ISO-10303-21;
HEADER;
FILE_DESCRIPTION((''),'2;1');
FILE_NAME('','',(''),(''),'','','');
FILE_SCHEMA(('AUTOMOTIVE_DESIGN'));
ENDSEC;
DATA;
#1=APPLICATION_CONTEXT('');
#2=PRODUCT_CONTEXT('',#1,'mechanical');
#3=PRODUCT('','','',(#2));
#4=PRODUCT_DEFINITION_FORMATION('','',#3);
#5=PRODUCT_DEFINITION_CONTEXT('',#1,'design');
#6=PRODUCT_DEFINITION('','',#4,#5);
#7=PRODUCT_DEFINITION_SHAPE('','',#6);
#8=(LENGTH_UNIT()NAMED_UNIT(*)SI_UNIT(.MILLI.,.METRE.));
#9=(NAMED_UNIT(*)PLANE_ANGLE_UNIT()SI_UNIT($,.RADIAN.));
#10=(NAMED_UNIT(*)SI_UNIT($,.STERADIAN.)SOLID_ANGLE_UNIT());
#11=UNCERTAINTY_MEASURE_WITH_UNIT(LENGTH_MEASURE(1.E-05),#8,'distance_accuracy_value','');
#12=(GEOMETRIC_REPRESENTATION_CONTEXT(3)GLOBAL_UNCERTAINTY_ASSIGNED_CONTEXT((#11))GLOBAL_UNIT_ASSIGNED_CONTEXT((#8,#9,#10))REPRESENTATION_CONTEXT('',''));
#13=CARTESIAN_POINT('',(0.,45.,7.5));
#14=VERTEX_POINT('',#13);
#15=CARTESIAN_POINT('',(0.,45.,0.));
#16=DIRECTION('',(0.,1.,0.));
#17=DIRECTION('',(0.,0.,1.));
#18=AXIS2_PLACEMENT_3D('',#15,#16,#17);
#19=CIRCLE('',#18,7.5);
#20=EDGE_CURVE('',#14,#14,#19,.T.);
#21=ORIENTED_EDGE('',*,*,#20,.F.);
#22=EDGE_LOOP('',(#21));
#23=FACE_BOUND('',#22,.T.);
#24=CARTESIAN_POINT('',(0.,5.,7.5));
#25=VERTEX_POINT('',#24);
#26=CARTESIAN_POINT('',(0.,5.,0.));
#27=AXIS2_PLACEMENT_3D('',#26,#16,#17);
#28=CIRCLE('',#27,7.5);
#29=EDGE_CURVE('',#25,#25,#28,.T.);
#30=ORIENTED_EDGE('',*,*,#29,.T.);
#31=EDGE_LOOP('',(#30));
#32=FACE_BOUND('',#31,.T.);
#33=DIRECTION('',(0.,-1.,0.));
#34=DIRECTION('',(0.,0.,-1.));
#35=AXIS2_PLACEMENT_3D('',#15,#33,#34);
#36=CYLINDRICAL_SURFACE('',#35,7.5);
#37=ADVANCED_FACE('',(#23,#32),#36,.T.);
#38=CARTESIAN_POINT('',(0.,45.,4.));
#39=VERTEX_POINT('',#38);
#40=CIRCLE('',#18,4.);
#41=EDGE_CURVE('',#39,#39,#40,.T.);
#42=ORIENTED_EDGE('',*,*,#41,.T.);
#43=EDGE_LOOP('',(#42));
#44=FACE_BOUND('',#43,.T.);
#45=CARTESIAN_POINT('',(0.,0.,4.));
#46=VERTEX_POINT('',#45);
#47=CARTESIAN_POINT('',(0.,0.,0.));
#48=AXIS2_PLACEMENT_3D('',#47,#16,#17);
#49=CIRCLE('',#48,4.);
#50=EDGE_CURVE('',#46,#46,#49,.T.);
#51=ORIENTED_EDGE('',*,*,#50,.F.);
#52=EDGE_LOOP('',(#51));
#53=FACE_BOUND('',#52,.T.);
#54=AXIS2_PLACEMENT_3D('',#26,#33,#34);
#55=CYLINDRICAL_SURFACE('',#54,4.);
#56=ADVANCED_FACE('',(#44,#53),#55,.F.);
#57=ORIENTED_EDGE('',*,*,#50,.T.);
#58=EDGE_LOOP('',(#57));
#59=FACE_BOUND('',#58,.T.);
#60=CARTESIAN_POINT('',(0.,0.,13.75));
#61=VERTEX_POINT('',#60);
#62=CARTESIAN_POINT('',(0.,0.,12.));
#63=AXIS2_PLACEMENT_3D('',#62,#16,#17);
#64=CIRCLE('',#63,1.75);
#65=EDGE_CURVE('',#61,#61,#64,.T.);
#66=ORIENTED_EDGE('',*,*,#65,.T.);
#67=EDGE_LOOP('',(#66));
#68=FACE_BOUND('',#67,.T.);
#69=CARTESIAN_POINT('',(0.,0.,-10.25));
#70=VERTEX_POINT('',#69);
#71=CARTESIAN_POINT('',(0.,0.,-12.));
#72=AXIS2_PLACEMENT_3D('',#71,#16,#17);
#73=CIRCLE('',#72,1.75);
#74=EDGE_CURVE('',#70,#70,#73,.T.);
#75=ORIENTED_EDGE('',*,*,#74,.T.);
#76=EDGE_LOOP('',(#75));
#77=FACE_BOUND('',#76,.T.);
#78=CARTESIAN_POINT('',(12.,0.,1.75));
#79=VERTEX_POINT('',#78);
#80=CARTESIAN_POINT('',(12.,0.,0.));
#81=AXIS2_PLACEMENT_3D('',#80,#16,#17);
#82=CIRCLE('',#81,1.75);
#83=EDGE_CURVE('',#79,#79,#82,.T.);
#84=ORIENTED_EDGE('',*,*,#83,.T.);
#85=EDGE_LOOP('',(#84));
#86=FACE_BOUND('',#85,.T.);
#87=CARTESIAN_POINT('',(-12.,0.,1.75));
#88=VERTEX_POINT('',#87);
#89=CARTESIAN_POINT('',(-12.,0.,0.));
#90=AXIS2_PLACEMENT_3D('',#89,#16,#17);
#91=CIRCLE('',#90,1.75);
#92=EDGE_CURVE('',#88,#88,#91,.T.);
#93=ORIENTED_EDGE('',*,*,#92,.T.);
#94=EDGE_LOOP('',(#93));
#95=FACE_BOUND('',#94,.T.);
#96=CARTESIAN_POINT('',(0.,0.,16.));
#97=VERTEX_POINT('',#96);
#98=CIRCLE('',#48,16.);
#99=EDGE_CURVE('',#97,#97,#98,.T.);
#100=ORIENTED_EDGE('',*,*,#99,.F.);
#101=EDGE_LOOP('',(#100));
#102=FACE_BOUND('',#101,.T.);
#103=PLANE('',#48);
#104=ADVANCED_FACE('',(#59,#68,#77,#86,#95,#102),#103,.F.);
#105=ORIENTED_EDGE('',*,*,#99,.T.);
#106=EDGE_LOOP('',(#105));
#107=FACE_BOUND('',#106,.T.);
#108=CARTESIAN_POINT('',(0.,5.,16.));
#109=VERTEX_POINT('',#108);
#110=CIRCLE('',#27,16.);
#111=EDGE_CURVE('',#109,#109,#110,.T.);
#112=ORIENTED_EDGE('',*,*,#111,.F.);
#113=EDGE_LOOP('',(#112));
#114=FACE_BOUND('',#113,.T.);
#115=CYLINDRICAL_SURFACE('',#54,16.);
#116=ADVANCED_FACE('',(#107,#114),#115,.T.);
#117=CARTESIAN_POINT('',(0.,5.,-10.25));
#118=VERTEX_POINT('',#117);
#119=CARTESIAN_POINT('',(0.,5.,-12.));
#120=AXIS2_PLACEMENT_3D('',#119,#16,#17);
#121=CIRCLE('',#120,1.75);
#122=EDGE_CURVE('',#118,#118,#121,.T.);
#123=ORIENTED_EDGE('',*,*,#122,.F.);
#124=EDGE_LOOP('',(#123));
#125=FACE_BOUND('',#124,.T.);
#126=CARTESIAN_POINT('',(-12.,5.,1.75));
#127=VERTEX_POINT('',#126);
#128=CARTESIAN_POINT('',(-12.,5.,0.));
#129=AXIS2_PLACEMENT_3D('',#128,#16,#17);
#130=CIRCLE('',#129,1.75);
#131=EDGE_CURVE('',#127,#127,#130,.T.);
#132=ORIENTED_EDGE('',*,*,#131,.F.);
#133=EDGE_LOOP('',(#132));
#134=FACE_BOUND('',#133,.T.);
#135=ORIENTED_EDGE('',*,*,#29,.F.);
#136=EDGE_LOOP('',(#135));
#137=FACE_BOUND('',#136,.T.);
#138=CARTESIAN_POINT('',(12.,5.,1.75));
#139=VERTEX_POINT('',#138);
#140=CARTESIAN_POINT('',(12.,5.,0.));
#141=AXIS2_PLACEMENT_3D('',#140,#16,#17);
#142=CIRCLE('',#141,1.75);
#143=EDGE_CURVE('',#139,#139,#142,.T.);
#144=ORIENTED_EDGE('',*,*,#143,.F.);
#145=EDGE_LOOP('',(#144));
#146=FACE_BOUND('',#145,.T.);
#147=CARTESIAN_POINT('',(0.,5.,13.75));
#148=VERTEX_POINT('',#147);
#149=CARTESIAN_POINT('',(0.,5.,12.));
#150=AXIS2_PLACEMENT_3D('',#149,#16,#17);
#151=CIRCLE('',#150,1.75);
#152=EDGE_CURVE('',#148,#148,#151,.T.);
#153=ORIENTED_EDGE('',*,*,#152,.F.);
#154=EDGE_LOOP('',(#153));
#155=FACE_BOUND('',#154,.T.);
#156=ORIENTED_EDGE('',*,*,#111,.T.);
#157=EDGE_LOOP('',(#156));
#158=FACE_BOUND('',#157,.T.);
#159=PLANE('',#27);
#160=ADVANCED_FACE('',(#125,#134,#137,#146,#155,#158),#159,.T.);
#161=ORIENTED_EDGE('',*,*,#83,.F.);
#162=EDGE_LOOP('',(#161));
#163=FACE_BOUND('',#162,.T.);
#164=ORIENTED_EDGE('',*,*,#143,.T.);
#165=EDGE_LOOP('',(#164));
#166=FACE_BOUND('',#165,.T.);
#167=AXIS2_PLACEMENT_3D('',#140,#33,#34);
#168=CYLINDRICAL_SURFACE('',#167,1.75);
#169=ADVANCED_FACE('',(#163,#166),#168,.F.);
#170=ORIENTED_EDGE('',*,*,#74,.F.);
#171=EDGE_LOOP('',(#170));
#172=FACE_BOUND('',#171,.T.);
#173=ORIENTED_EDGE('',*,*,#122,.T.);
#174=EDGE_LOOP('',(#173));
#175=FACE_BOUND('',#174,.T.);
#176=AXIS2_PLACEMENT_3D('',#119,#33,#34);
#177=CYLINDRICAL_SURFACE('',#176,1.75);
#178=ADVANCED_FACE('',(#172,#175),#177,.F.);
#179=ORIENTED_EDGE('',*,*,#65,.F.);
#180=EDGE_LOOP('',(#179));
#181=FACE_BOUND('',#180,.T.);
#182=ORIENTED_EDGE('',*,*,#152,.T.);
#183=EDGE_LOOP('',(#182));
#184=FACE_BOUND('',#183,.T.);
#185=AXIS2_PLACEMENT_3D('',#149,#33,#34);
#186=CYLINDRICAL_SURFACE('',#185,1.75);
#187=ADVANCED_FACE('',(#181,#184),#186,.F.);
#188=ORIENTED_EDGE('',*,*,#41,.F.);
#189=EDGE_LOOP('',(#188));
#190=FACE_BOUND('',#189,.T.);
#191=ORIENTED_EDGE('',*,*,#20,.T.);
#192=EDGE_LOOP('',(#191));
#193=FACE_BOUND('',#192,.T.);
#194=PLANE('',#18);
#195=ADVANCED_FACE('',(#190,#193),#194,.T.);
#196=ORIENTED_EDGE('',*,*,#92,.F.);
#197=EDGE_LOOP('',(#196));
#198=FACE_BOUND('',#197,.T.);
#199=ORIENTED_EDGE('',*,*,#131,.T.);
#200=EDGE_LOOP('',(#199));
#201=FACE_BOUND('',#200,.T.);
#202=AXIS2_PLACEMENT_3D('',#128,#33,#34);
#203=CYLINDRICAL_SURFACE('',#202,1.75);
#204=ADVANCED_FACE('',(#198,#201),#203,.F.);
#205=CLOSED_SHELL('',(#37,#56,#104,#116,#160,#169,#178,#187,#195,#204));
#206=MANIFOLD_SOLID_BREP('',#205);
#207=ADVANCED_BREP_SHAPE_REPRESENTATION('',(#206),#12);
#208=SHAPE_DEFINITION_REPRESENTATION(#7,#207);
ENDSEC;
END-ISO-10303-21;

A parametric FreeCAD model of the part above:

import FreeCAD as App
import Part
import Sketcher
Q = App.Units.Quantity

doc = App.newDocument("Part")
body = doc.addObject("PartDesign::Body", "Body")

# Sketch on XZ plane
sketch1 = doc.addObject("Sketcher::SketchObject", "Sketch")
body.addObject(sketch1)
sketch1.AttachmentSupport = (doc.XZ_Plane, [""])
sketch1.MapMode = "FlatFace"
sketch1.addGeometry(Part.Circle(App.Vector(0, 0, 0), App.Vector(0, 0, 1), 16), False)
sketch1.addGeometry(Part.Circle(App.Vector(0, -12, 0), App.Vector(0, 0, 1), 1.8), False)
sketch1.addGeometry(Part.Circle(App.Vector(-12, 0, 0), App.Vector(0, 0, 1), 1.8), False)
sketch1.addGeometry(Part.Circle(App.Vector(12, 0, 0), App.Vector(0, 0, 1), 1.8), False)
sketch1.addGeometry(Part.Circle(App.Vector(0, 0, 0), App.Vector(0, 0, 1), 4), False)
sketch1.addGeometry(Part.Circle(App.Vector(0, 12, 0), App.Vector(0, 0, 1), 1.8), False)
sketch1.addConstraint(Sketcher.Constraint("Coincident", 0, 3, -1, 1))
sketch1.addConstraint(Sketcher.Constraint("Coincident", 4, 3, -1, 1))
sketch1.addConstraint(Sketcher.Constraint("Equal", 1, 2))
sketch1.addConstraint(Sketcher.Constraint("Equal", 2, 3))
sketch1.addConstraint(Sketcher.Constraint("Equal", 3, 5))
sketch1.addConstraint(Sketcher.Constraint("Symmetric", 2, 3, 3, 3, -1, 1))
sketch1.addConstraint(Sketcher.Constraint("Symmetric", 1, 3, 5, 3, -1, 1))
sketch1.addConstraint(Sketcher.Constraint("PointOnObject", 1, 3, -2))
sketch1.addConstraint(Sketcher.Constraint("PointOnObject", 2, 3, -1))
sketch1.addConstraint(Sketcher.Constraint("Diameter", 0, Q("32 mm")))
sketch1.addConstraint(Sketcher.Constraint("Diameter", 4, Q("8 mm")))
sketch1.addConstraint(Sketcher.Constraint("Diameter", 1, Q("3.5 mm")))
sketch1.addConstraint(Sketcher.Constraint("DistanceY", 1, 3, -1, 1, Q("12 mm")))
sketch1.addConstraint(Sketcher.Constraint("DistanceX", 2, 3, -1, 1, Q("12 mm")))
pad1 = doc.addObject("PartDesign::Pad", "Pad")
body.addObject(pad1)
pad1.Profile = sketch1
pad1.Length = 5
pad1.Reversed = True

# Sketch on XZ plane
sketch2 = doc.addObject("Sketcher::SketchObject", "Sketch001")
body.addObject(sketch2)
sketch2.AttachmentSupport = (doc.XZ_Plane, [""])
sketch2.MapMode = "FlatFace"
sketch2.AttachmentOffset = App.Placement(App.Vector(0, 0, -5), App.Rotation())
sketch2.addGeometry(Part.Circle(App.Vector(0, 0, 0), App.Vector(0, 0, 1), 7.5), False)
sketch2.addGeometry(Part.Circle(App.Vector(0, 0, 0), App.Vector(0, 0, 1), 4), False)
sketch2.addConstraint(Sketcher.Constraint("Coincident", 0, 3, -1, 1))
sketch2.addConstraint(Sketcher.Constraint("Coincident", 1, 3, -1, 1))
sketch2.addConstraint(Sketcher.Constraint("Diameter", 0, Q("15 mm")))
sketch2.addConstraint(Sketcher.Constraint("Diameter", 1, Q("8 mm")))
pad2 = doc.addObject("PartDesign::Pad", "Pad001")
body.addObject(pad2)
pad2.Profile = sketch2
pad2.Length = 40
pad2.Reversed = True

doc.recompute()
